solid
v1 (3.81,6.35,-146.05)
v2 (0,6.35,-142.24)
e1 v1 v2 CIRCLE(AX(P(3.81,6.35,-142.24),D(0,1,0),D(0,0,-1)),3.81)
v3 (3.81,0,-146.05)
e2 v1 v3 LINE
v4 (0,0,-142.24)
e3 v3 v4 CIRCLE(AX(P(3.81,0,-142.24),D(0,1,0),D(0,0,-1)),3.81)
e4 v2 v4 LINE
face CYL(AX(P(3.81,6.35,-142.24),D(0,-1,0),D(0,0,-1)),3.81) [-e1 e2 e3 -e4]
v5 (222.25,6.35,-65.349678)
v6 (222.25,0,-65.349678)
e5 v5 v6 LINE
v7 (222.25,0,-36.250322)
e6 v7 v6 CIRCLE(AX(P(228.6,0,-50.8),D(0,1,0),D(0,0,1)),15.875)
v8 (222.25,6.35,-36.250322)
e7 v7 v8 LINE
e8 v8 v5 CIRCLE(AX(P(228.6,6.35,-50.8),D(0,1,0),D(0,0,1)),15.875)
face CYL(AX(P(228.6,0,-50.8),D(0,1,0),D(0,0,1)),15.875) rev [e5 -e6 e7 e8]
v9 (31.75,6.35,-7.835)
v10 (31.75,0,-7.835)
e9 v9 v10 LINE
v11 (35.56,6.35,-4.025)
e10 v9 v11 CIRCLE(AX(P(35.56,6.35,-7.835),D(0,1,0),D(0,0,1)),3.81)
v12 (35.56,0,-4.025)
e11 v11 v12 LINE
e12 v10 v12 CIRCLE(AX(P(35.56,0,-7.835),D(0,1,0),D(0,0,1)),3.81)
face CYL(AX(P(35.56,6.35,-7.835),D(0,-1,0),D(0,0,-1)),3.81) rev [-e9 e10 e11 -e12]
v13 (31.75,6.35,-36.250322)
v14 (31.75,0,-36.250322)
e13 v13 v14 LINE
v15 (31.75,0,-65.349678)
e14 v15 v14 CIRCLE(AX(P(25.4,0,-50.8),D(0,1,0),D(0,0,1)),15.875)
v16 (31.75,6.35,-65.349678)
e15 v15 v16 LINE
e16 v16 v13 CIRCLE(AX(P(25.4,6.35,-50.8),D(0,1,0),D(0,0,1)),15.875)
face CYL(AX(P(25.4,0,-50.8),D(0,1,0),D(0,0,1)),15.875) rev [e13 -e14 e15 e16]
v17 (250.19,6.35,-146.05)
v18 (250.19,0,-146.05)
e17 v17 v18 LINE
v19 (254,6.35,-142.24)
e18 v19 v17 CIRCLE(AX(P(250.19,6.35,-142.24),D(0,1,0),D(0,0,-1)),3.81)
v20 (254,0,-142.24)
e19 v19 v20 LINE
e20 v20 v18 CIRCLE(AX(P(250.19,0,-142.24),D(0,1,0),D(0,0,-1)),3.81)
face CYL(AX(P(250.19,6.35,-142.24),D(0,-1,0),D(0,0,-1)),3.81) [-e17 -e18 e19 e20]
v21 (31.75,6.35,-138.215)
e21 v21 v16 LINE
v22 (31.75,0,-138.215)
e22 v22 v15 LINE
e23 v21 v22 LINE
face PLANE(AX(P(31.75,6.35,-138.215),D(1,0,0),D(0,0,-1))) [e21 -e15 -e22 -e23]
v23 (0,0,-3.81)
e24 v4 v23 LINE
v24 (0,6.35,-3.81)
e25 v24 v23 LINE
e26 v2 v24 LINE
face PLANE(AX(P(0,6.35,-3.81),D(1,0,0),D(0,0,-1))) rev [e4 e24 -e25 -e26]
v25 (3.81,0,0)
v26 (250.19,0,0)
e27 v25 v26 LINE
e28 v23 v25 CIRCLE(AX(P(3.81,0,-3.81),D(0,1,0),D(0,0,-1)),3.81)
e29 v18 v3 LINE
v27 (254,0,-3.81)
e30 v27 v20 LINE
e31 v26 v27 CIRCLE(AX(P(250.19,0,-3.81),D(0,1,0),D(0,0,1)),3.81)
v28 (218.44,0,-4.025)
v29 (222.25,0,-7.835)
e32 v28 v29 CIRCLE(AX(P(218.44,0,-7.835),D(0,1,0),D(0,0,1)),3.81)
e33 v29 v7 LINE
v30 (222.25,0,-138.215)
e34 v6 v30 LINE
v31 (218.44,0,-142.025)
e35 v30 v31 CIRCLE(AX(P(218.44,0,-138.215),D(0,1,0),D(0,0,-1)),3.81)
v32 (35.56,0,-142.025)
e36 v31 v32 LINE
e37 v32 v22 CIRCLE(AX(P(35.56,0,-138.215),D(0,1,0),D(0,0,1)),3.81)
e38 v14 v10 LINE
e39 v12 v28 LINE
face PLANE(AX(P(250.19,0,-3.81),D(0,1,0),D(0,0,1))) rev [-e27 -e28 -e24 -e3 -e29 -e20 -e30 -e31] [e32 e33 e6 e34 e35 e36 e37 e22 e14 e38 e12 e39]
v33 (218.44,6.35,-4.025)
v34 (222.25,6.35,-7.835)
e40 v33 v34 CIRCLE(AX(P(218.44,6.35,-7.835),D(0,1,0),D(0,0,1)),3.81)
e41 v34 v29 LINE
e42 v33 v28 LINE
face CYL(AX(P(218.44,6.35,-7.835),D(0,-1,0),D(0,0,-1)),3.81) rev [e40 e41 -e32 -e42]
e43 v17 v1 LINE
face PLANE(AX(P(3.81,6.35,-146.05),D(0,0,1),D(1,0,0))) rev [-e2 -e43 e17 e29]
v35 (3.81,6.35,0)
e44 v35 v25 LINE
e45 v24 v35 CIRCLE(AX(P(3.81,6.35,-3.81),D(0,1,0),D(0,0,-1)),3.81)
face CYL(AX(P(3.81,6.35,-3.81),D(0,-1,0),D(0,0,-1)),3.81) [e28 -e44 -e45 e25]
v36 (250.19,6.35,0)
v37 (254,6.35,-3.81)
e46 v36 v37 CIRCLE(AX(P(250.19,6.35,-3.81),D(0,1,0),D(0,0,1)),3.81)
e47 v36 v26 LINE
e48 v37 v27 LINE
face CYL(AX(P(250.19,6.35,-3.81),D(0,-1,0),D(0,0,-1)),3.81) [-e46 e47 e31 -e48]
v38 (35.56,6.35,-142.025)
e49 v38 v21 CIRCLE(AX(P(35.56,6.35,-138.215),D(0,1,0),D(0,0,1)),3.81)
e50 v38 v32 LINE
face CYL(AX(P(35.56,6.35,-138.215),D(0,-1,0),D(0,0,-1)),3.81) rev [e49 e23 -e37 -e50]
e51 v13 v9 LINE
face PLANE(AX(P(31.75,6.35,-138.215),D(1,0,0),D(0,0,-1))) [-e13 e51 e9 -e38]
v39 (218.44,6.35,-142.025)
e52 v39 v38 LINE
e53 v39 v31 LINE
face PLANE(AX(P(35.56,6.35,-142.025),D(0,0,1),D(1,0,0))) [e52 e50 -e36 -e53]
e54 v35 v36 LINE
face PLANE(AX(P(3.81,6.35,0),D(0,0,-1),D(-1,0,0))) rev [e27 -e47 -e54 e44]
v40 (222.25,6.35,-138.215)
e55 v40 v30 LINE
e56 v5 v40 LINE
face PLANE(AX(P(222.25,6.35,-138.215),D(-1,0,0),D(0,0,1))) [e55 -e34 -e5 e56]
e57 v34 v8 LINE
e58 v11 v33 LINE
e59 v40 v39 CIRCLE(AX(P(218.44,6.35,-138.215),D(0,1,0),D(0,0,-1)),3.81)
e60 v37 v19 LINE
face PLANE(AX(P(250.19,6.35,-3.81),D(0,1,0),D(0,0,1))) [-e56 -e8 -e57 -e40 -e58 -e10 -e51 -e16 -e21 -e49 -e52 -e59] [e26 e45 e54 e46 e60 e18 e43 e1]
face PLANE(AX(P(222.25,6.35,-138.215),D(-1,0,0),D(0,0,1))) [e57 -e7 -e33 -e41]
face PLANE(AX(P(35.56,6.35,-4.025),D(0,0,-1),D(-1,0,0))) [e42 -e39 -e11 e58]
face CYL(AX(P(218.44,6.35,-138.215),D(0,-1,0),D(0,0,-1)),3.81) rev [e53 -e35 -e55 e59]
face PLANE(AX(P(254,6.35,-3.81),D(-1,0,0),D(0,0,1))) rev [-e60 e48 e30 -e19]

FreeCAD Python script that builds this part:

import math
import FreeCAD as App
import Part
import Sketcher
from FreeCAD import Vector
Q = App.Units.Quantity

doc = App.newDocument("Part")
params = doc.addObject("Spreadsheet::Sheet", "Params")
for row, (alias, value) in enumerate([
    ("sketch1_radius", "0.15 in"),
    ("sketch1_width", "9.7 in"),
    ("sketch1_width2", "7.2 in"),
    ("sketch1_height", "5.45 in"),
    ("pad1_length", "0.25 in"),
    ("sketch2_diameter", "1.25 in"),
], start=1):
    params.set(f"A{row}", alias)
    params.set(f"B{row}", "=" + value)
    params.setAlias(f"B{row}", alias)

body = doc.addObject("PartDesign::Body", "Body")

# Sketch on XZ plane
sketch1 = body.newObject("Sketcher::SketchObject", "Sketch")
sketch1.AttachmentSupport = (doc.getObject("XZ_Plane"), [""])
sketch1.MapMode = "FlatFace"
sketch1.addGeometry(Part.LineSegment(Vector(3.8, 0, 0), Vector(250.2, 0, 0)), False)
sketch1.addGeometry(Part.ArcOfCircle(Part.Circle(Vector(250.2, -3.8, 0), Vector(0, 0, 1), 3.8), math.radians(0), math.radians(90)), False)
sketch1.addGeometry(Part.LineSegment(Vector(254, -3.8, 0), Vector(254, -142.2, 0)), False)
sketch1.addGeometry(Part.ArcOfCircle(Part.Circle(Vector(250.2, -142.2, 0), Vector(0, 0, 1), 3.8), math.radians(-90), math.radians(0)), False)
sketch1.addGeometry(Part.LineSegment(Vector(250.2, -146.1, 0), Vector(3.8, -146.1, 0)), False)
sketch1.addGeometry(Part.ArcOfCircle(Part.Circle(Vector(3.8, -142.2, 0), Vector(0, 0, 1), 3.8), math.radians(-180), math.radians(-90)), False)
sketch1.addGeometry(Part.LineSegment(Vector(0, -142.2, 0), Vector(0, -3.8, 0)), False)
sketch1.addGeometry(Part.ArcOfCircle(Part.Circle(Vector(3.8, -3.8, 0), Vector(0, 0, 1), 3.8), math.radians(90), math.radians(180)), False)
sketch1.addGeometry(Part.ArcOfCircle(Part.Circle(Vector(35.6, -138.2, 0), Vector(0, 0, 1), 3.8), math.radians(-180), math.radians(-90)), False)
sketch1.addGeometry(Part.LineSegment(Vector(35.6, -142, 0), Vector(218.4, -142, 0)), False)
sketch1.addGeometry(Part.ArcOfCircle(Part.Circle(Vector(218.4, -138.2, 0), Vector(0, 0, 1), 3.8), math.radians(-90), math.radians(0)), False)
sketch1.addGeometry(Part.LineSegment(Vector(222.2, -138.2, 0), Vector(222.2, -7.8, 0)), False)
sketch1.addGeometry(Part.ArcOfCircle(Part.Circle(Vector(218.4, -7.8, 0), Vector(0, 0, 1), 3.8), math.radians(0), math.radians(90)), False)
sketch1.addGeometry(Part.LineSegment(Vector(218.4, -4, 0), Vector(35.6, -4, 0)), False)
sketch1.addGeometry(Part.ArcOfCircle(Part.Circle(Vector(35.6, -7.8, 0), Vector(0, 0, 1), 3.8), math.radians(90), math.radians(180)), False)
sketch1.addGeometry(Part.LineSegment(Vector(31.8, -7.8, 0), Vector(31.8, -138.2, 0)), False)
sketch1.addConstraint(Sketcher.Constraint("Tangent", 0, 2, 1, 2))
sketch1.addConstraint(Sketcher.Constraint("Tangent", 1, 1, 2, 1))
sketch1.addConstraint(Sketcher.Constraint("Tangent", 2, 2, 3, 2))
sketch1.addConstraint(Sketcher.Constraint("Tangent", 3, 1, 4, 1))
sketch1.addConstraint(Sketcher.Constraint("Tangent", 4, 2, 5, 2))
sketch1.addConstraint(Sketcher.Constraint("Tangent", 5, 1, 6, 1))
sketch1.addConstraint(Sketcher.Constraint("Tangent", 6, 2, 7, 2))
sketch1.addConstraint(Sketcher.Constraint("Tangent", 7, 1, 0, 1))
sketch1.addConstraint(Sketcher.Constraint("Tangent", 8, 2, 9, 1))
sketch1.addConstraint(Sketcher.Constraint("Tangent", 9, 2, 10, 1))
sketch1.addConstraint(Sketcher.Constraint("Tangent", 10, 2, 11, 1))
sketch1.addConstraint(Sketcher.Constraint("Tangent", 11, 2, 12, 1))
sketch1.addConstraint(Sketcher.Constraint("Tangent", 12, 2, 13, 1))
sketch1.addConstraint(Sketcher.Constraint("Tangent", 13, 2, 14, 1))
sketch1.addConstraint(Sketcher.Constraint("Tangent", 14, 2, 15, 1))
sketch1.addConstraint(Sketcher.Constraint("Tangent", 15, 2, 8, 1))
sketch1.addConstraint(Sketcher.Constraint("Horizontal", 0))
sketch1.addConstraint(Sketcher.Constraint("Vertical", 2))
sketch1.addConstraint(Sketcher.Constraint("Horizontal", 4))
sketch1.addConstraint(Sketcher.Constraint("Vertical", 6))
sketch1.addConstraint(Sketcher.Constraint("Horizontal", 9))
sketch1.addConstraint(Sketcher.Constraint("Vertical", 11))
sketch1.addConstraint(Sketcher.Constraint("Horizontal", 13))
sketch1.addConstraint(Sketcher.Constraint("Vertical", 15))
sketch1.addConstraint(Sketcher.Constraint("Equal", 1, 3))
sketch1.addConstraint(Sketcher.Constraint("Equal", 3, 5))
sketch1.addConstraint(Sketcher.Constraint("Equal", 5, 7))
sketch1.addConstraint(Sketcher.Constraint("Equal", 7, 8))
sketch1.addConstraint(Sketcher.Constraint("Equal", 8, 10))
sketch1.addConstraint(Sketcher.Constraint("Equal", 10, 12))
sketch1.addConstraint(Sketcher.Constraint("Equal", 12, 14))
sketch1.addConstraint(Sketcher.Constraint("PointOnObject", 0, 2, -1))
sketch1.addConstraint(Sketcher.Constraint("PointOnObject", 5, 1, -2))
sketch1.addConstraint(Sketcher.Constraint("Radius", 1, Q("0.15 in")))
sketch1.addConstraint(Sketcher.Constraint("DistanceX", 0, 1, 0, 2, Q("9.7 in")))
sketch1.addConstraint(Sketcher.Constraint("DistanceX", 9, 1, 9, 2, Q("7.2 in")))
sketch1.addConstraint(Sketcher.Constraint("DistanceY", 2, 2, 2, 1, Q("5.45 in")))
sketch1.addConstraint(Sketcher.Constraint("DistanceX", -1, 1, 8, 3, Q("1.4 in")))
sketch1.addConstraint(Sketcher.Constraint("DistanceY", 11, 1, 11, 2, Q("130.38 mm")))
sketch1.addConstraint(Sketcher.Constraint("DistanceY", 8, 3, -1, 1, Q("138.215 mm")))
sketch1.setExpression("Constraints[33]", "Params.sketch1_radius")
sketch1.setExpression("Constraints[34]", "Params.sketch1_width")
sketch1.setExpression("Constraints[35]", "Params.sketch1_width2")
sketch1.setExpression("Constraints[36]", "Params.sketch1_height")
pad1 = body.newObject("PartDesign::Pad", "Pad")
pad1.Profile = sketch1
pad1.setExpression("Length", "Params.pad1_length")
pad1.Reversed = True

# Sketch on XZ plane
sketch2 = body.newObject("Sketcher::SketchObject", "Sketch001")
sketch2.AttachmentSupport = (doc.getObject("XZ_Plane"), [""])
sketch2.MapMode = "FlatFace"
sketch2.AttachmentOffset = App.Placement(Vector(0, 0, -0.25 * 25.4), App.Rotation())
sketch2.addGeometry(Part.Circle(Vector(25, -51, 0), Vector(0, 0, 1), 16), False)
sketch2.addGeometry(Part.Circle(Vector(229, -51, 0), Vector(0, 0, 1), 16), False)
sketch2.addConstraint(Sketcher.Constraint("Equal", 0, 1))
sketch2.addConstraint(Sketcher.Constraint("Horizontal", 0, 3, 1, 3))
sketch2.addConstraint(Sketcher.Constraint("Diameter", 0, Q("1.25 in")))
sketch2.addConstraint(Sketcher.Constraint("DistanceX", -1, 1, 0, 3, Q("1 in")))
sketch2.addConstraint(Sketcher.Constraint("DistanceY", 0, 3, -1, 1, Q("2 in")))
sketch2.addConstraint(Sketcher.Constraint("DistanceX", -1, 1, 1, 3, Q("9 in")))
sketch2.setExpression("Constraints[2]", "Params.sketch2_diameter")
pocket1 = body.newObject("PartDesign::Pocket", "Pocket")
pocket1.Profile = sketch2
pocket1.Type = "ThroughAll"
pocket1.Reversed = True

doc.recompute()
